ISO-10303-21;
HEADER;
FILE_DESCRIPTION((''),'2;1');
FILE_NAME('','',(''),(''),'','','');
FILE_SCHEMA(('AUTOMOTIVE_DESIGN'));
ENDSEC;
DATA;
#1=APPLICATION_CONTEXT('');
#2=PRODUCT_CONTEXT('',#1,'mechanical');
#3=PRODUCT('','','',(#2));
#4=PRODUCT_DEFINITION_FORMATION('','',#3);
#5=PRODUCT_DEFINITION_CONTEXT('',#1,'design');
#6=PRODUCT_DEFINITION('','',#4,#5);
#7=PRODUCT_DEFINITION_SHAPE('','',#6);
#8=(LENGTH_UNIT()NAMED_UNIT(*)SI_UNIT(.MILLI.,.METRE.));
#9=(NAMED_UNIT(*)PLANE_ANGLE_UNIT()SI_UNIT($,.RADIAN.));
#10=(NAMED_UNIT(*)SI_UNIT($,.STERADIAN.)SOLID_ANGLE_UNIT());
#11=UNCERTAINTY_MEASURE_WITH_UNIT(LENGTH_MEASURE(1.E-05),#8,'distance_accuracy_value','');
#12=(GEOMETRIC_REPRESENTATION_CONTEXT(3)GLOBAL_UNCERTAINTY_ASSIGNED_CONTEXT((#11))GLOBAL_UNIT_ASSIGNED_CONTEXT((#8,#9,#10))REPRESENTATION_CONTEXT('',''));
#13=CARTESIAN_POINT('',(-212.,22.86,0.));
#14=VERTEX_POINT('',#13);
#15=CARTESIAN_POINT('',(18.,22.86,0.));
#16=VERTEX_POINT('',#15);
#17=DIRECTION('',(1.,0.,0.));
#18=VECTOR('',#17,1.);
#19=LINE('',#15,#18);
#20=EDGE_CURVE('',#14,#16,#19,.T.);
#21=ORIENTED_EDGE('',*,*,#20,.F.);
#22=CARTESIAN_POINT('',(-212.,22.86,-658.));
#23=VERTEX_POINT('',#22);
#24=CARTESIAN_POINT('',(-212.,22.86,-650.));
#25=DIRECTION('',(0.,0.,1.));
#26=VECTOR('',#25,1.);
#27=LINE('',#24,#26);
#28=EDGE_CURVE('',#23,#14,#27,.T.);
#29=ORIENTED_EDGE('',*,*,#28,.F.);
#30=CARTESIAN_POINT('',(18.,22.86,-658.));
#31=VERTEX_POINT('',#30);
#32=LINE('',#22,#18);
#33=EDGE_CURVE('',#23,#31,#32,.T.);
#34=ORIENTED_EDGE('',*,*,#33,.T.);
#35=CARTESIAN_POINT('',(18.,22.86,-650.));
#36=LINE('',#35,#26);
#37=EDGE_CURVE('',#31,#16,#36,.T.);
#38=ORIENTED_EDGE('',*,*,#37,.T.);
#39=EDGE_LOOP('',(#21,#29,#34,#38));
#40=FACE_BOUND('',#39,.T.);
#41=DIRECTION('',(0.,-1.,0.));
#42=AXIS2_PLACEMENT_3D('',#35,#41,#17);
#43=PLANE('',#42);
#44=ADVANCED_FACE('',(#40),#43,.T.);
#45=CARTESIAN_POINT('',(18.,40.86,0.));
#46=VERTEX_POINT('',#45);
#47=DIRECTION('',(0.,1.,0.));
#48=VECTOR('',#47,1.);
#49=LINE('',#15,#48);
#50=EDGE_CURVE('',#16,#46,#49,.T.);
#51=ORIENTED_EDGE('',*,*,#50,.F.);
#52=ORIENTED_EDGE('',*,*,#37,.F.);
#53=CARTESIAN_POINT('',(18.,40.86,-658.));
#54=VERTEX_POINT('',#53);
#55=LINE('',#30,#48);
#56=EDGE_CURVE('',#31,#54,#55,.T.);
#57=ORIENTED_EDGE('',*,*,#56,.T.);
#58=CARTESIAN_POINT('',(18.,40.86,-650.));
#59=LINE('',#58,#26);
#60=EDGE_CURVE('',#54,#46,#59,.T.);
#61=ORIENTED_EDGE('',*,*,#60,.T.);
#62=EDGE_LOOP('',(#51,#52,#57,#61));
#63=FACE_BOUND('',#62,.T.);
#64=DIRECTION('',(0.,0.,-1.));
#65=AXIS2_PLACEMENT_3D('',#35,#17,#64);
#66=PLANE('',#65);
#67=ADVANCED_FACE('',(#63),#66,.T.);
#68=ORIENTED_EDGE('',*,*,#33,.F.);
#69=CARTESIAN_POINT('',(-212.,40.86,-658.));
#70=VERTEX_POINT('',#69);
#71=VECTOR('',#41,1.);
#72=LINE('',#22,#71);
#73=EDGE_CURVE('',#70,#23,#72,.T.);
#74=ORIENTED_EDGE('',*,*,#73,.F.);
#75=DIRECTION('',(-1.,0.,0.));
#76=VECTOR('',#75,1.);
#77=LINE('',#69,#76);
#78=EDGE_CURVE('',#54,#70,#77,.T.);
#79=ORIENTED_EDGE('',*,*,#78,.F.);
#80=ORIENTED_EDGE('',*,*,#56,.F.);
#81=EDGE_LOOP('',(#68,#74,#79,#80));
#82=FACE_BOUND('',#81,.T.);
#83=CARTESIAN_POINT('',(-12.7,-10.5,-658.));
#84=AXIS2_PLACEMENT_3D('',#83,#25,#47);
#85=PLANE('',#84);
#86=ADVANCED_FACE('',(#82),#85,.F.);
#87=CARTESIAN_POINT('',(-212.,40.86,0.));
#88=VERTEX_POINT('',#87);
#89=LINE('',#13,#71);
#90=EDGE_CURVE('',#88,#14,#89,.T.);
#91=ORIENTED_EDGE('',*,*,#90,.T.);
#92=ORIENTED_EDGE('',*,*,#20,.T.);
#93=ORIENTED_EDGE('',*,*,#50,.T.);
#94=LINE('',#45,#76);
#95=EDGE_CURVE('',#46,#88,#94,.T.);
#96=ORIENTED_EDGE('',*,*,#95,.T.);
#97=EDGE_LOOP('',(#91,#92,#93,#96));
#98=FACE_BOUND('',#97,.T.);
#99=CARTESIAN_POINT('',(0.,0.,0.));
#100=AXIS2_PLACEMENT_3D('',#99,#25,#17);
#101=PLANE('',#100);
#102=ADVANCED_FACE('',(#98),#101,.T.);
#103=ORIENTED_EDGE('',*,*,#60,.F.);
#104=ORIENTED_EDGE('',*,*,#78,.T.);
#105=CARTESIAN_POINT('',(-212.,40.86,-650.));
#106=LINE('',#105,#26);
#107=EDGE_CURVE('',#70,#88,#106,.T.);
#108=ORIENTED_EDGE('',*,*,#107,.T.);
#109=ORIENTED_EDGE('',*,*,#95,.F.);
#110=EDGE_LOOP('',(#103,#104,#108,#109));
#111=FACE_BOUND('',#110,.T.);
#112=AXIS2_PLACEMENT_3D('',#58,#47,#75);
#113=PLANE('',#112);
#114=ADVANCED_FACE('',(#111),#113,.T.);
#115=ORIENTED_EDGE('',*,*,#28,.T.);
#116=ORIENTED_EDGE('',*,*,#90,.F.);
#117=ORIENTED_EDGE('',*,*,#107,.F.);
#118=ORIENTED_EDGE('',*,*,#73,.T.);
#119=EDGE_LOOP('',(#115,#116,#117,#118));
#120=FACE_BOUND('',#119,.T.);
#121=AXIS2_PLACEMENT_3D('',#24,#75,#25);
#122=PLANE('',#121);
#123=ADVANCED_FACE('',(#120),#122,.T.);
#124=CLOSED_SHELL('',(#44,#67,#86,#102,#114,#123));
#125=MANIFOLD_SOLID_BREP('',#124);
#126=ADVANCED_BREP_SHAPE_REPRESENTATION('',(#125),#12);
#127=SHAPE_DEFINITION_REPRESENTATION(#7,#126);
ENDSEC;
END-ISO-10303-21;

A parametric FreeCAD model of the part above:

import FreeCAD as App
import Part
import Sketcher


def add_polygon(sketch, points):
    """Adds a closed chain of lines whose ends are joined by coincident constraints."""
    first, n = sketch.GeometryCount, len(points)
    for a, b in zip(points, points[1:] + points[:1]):
        sketch.addGeometry(Part.LineSegment(App.Vector(*a, 0), App.Vector(*b, 0)), False)
    for i in range(n):
        sketch.addConstraint(Sketcher.Constraint("Coincident", first + i, 2, first + (i + 1) % n, 1))

doc = App.newDocument("Part")
body = doc.addObject("PartDesign::Body", "Body")

sketch1 = body.newObject("Sketcher::SketchObject", "Sketch")
sketch1.AttachmentSupport = (doc.getObject("XY_Plane"), [""])
sketch1.MapMode = "FlatFace"
add_polygon(sketch1, [(-212, 40.86), (-212, 22.86), (18, 22.86), (18, 40.86)])
sketch1.addConstraint(Sketcher.Constraint("Vertical", 0))
sketch1.addConstraint(Sketcher.Constraint("Horizontal", 1))
sketch1.addConstraint(Sketcher.Constraint("Vertical", 2))
sketch1.addConstraint(Sketcher.Constraint("Horizontal", 3))
sketch1.addConstraint(Sketcher.Constraint("DistanceX", 1, 1, 1, 2, 230.0))
sketch1.addConstraint(Sketcher.Constraint("DistanceY", 0, 2, 0, 1, 18.0))
sketch1.addConstraint(Sketcher.Constraint("DistanceX", 0, 2, -1, 1, 212.0))
sketch1.addConstraint(Sketcher.Constraint("DistanceY", -1, 1, 0, 2, 22.86))
pad1 = body.newObject("PartDesign::Pad", "Pad")
pad1.Profile = sketch1
pad1.Length = 650
pad1.Reversed = True

sketch2 = body.newObject("Sketcher::SketchObject", "Sketch001")
sketch2.AttachmentSupport = (doc.getObject("XY_Plane"), [""])
sketch2.MapMode = "FlatFace"
sketch2.AttachmentOffset = App.Placement(App.Vector(0, 0, -650), App.Rotation())
add_polygon(sketch2, [(18, 40.86), (18, 22.86), (-212, 22.86), (-212, 40.86)])
sketch2.addConstraint(Sketcher.Constraint("Vertical", 0))
sketch2.addConstraint(Sketcher.Constraint("Horizontal", 1))
sketch2.addConstraint(Sketcher.Constraint("Vertical", 2))
sketch2.addConstraint(Sketcher.Constraint("Horizontal", 3))
sketch2.addConstraint(Sketcher.Constraint("DistanceX", 1, 2, 1, 1, 230.0))
sketch2.addConstraint(Sketcher.Constraint("DistanceY", 0, 2, 0, 1, 18.0))
sketch2.addConstraint(Sketcher.Constraint("DistanceX", -1, 1, 0, 2, 18.0))
sketch2.addConstraint(Sketcher.Constraint("DistanceY", -1, 1, 0, 2, 22.86))
pad2 = body.newObject("PartDesign::Pad", "Pad001")
pad2.Profile = sketch2
pad2.Length = 8
pad2.Reversed = True

doc.recompute()
